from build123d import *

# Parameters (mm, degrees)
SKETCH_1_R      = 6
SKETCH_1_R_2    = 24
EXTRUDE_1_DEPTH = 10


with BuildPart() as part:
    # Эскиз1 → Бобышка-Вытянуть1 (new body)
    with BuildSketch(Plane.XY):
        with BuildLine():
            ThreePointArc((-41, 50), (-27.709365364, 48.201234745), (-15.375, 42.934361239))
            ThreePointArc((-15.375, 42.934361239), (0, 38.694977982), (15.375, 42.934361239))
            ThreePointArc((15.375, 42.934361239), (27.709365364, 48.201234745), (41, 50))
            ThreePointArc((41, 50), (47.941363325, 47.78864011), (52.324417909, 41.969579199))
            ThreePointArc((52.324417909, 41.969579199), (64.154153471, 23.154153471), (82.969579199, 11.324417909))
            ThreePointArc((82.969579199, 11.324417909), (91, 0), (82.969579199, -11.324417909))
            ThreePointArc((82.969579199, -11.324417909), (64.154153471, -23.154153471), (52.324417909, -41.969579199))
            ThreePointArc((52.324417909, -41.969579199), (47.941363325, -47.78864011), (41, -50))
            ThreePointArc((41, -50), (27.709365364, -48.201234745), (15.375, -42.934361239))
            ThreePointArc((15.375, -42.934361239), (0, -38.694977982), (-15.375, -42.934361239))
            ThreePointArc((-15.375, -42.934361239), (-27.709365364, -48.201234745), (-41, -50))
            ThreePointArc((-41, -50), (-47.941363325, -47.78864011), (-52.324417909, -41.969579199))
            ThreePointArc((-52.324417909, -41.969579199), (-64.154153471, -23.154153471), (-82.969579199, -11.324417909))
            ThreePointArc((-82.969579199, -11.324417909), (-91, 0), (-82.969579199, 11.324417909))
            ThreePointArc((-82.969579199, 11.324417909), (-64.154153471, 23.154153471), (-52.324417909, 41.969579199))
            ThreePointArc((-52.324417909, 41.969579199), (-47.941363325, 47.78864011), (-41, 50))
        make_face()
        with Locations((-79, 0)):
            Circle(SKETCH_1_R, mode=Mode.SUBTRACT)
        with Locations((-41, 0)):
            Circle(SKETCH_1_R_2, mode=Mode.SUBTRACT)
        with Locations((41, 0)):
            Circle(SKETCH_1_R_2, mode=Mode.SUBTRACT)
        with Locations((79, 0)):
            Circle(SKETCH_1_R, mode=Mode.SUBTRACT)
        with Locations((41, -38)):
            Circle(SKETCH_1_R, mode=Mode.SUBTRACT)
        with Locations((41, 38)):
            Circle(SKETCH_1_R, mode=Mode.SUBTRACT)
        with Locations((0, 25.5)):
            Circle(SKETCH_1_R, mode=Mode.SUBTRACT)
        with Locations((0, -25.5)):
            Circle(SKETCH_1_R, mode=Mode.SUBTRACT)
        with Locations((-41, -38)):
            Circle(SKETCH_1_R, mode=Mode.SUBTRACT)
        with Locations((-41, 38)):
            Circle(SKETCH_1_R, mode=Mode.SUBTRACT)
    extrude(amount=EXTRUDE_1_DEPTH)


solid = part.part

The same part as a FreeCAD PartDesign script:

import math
import FreeCAD as App
import Part
import Sketcher

V = App.Vector
Q = App.Units.Quantity

doc = App.newDocument("Part")
body = doc.addObject("PartDesign::Body", "Body")

# Sketch on XY plane
sketch1 = body.newObject("Sketcher::SketchObject", "Sketch")
sketch1.AttachmentSupport = (doc.getObject("XY_Plane"), [""])
sketch1.MapMode = "FlatFace"
sketch1.addGeometry([
    Part.ArcOfCircle(Part.Circle(V(-41, 0, 0), V(0, 0, 1), 50), math.radians(59), math.radians(90)),  # 0
    Part.ArcOfCircle(Part.Circle(V(-41, 38, 0), V(0, 0, 1), 12), math.radians(90), math.radians(161)),  # 1
    Part.ArcOfCircle(Part.Circle(V(-100, 59, 0), V(0, 0, 1), 50), math.radians(-71), math.radians(-19)),  # 2
    Part.ArcOfCircle(Part.Circle(V(-79, 0, 0), V(0, 0, 1), 12), math.radians(109), math.radians(251)),  # 3
    Part.ArcOfCircle(Part.Circle(V(-100, -59, 0), V(0, 0, 1), 50), math.radians(19), math.radians(71)),  # 4
    Part.ArcOfCircle(Part.Circle(V(-41, -38, 0), V(0, 0, 1), 12), math.radians(-161), math.radians(-90)),  # 5
    Part.ArcOfCircle(Part.Circle(V(-41, 0, 0), V(0, 0, 1), 50), math.radians(-90), math.radians(-59)),  # 6
    Part.ArcOfCircle(Part.Circle(V(0, -69, 0), V(0, 0, 1), 30), math.radians(59), math.radians(121)),  # 7
    Part.ArcOfCircle(Part.Circle(V(41, 0, 0), V(0, 0, 1), 50), math.radians(-121), math.radians(-90)),  # 8
    Part.ArcOfCircle(Part.Circle(V(41, -38, 0), V(0, 0, 1), 12), math.radians(-90), math.radians(-19)),  # 9
    Part.ArcOfCircle(Part.Circle(V(100, -59, 0), V(0, 0, 1), 50), math.radians(109), math.radians(161)),  # 10
    Part.ArcOfCircle(Part.Circle(V(79, 0, 0), V(0, 0, 1), 12), math.radians(-71), math.radians(71)),  # 11
    Part.ArcOfCircle(Part.Circle(V(100, 59, 0), V(0, 0, 1), 50), math.radians(-161), math.radians(-109)),  # 12
    Part.ArcOfCircle(Part.Circle(V(41, 38, 0), V(0, 0, 1), 12), math.radians(19), math.radians(90)),  # 13
    Part.ArcOfCircle(Part.Circle(V(41, 0, 0), V(0, 0, 1), 50), math.radians(90), math.radians(121)),  # 14
    Part.ArcOfCircle(Part.Circle(V(0, 69, 0), V(0, 0, 1), 30), math.radians(-121), math.radians(-59)),  # 15
    Part.Circle(V(41, -38, 0), V(0, 0, 1), 6),  # 16
    Part.Circle(V(-41, -38, 0), V(0, 0, 1), 6),  # 17
    Part.Circle(V(0, -26, 0), V(0, 0, 1), 6),  # 18
    Part.Circle(V(79, 0, 0), V(0, 0, 1), 6),  # 19
    Part.Circle(V(41, 0, 0), V(0, 0, 1), 24),  # 20
    Part.Circle(V(41, 38, 0), V(0, 0, 1), 6),  # 21
    Part.Circle(V(-41, 0, 0), V(0, 0, 1), 24),  # 22
    Part.Circle(V(-79, 0, 0), V(0, 0, 1), 6),  # 23
    Part.Circle(V(0, 26, 0), V(0, 0, 1), 6),  # 24
    Part.Circle(V(-41, 38, 0), V(0, 0, 1), 6),  # 25
], False)
sketch1.addConstraint([
    Sketcher.Constraint("Tangent", 0, 2, 1, 1),
    Sketcher.Constraint("Tangent", 1, 2, 2, 2),
    Sketcher.Constraint("Tangent", 2, 1, 3, 1),
    Sketcher.Constraint("Tangent", 3, 2, 4, 2),
    Sketcher.Constraint("Tangent", 4, 1, 5, 1),
    Sketcher.Constraint("Tangent", 5, 2, 6, 1),
    Sketcher.Constraint("Tangent", 6, 2, 7, 2),
    Sketcher.Constraint("Tangent", 7, 1, 8, 1),
    Sketcher.Constraint("Tangent", 8, 2, 9, 1),
    Sketcher.Constraint("Tangent", 9, 2, 10, 2),
    Sketcher.Constraint("Tangent", 10, 1, 11, 1),
    Sketcher.Constraint("Tangent", 11, 2, 12, 2),
    Sketcher.Constraint("Tangent", 12, 1, 13, 1),
    Sketcher.Constraint("Tangent", 13, 2, 14, 1),
    Sketcher.Constraint("Tangent", 14, 2, 15, 2),
    Sketcher.Constraint("Tangent", 15, 1, 0, 1),
    Sketcher.Constraint("Coincident", 6, 3, 0, 3),
    Sketcher.Constraint("Coincident", 14, 3, 8, 3),
    Sketcher.Constraint("Coincident", 16, 3, 9, 3),
    Sketcher.Constraint("Coincident", 17, 3, 5, 3),
    Sketcher.Constraint("Coincident", 19, 3, 11, 3),
    Sketcher.Constraint("Coincident", 20, 3, 8, 3),
    Sketcher.Constraint("Coincident", 21, 3, 13, 3),
    Sketcher.Constraint("Coincident", 22, 3, 0, 3),
    Sketcher.Constraint("Coincident", 23, 3, 3, 3),
    Sketcher.Constraint("Coincident", 25, 3, 1, 3),
    Sketcher.Constraint("Equal", 0, 2),
    Sketcher.Constraint("Equal", 1, 3),
    Sketcher.Constraint("Equal", 2, 4),
    Sketcher.Constraint("Equal", 3, 5),
    Sketcher.Constraint("Equal", 4, 6),
    Sketcher.Constraint("Equal", 6, 8),
    Sketcher.Constraint("Equal", 5, 9),
    Sketcher.Constraint("Equal", 8, 10),
    Sketcher.Constraint("Equal", 9, 11),
    Sketcher.Constraint("Equal", 10, 12),
    Sketcher.Constraint("Equal", 11, 13),
    Sketcher.Constraint("Equal", 12, 14),
    Sketcher.Constraint("Equal", 7, 15),
    Sketcher.Constraint("Equal", 16, 17),
    Sketcher.Constraint("Equal", 17, 18),
    Sketcher.Constraint("Equal", 18, 19),
    Sketcher.Constraint("Equal", 19, 21),
    Sketcher.Constraint("Equal", 20, 22),
    Sketcher.Constraint("Equal", 21, 23),
    Sketcher.Constraint("Equal", 23, 24),
    Sketcher.Constraint("Equal", 24, 25),
    Sketcher.Constraint("Symmetric", 0, 3, 8, 3, -1, 1),
    Sketcher.Constraint("Symmetric", 2, 3, 10, 3, -1, 1),
    Sketcher.Constraint("Symmetric", 4, 3, 12, 3, -1, 1),
    Sketcher.Constraint("Symmetric", 18, 3, 24, 3, -1, 1),
    Sketcher.Constraint("Symmetric", 5, 3, 9, 3, -2),
    Sketcher.Constraint("PointOnObject", 3, 3, -1),
    Sketcher.Constraint("PointOnObject", 18, 3, -2),
    Sketcher.Constraint("Vertical", 0, 3, 1, 3),
    Sketcher.Constraint("Diameter", 16, Q("12 mm")),
    Sketcher.Constraint("Diameter", 20, Q("48 mm")),
    Sketcher.Constraint("Radius", 0, Q("50 mm")),
    Sketcher.Constraint("Radius", 1, Q("12 mm")),
    Sketcher.Constraint("Radius", 7, Q("30 mm")),
    Sketcher.Constraint("DistanceX", 0, 3, -1, 1, Q("41 mm")),
    Sketcher.Constraint("DistanceX", 3, 3, -1, 1, Q("79 mm")),
    Sketcher.Constraint("DistanceY", 18, 3, -1, 1, Q("25.5 mm")),
])
pad1 = body.newObject("PartDesign::Pad", "Pad")
pad1.Profile = sketch1
pad1.Length = 10

doc.recompute()
